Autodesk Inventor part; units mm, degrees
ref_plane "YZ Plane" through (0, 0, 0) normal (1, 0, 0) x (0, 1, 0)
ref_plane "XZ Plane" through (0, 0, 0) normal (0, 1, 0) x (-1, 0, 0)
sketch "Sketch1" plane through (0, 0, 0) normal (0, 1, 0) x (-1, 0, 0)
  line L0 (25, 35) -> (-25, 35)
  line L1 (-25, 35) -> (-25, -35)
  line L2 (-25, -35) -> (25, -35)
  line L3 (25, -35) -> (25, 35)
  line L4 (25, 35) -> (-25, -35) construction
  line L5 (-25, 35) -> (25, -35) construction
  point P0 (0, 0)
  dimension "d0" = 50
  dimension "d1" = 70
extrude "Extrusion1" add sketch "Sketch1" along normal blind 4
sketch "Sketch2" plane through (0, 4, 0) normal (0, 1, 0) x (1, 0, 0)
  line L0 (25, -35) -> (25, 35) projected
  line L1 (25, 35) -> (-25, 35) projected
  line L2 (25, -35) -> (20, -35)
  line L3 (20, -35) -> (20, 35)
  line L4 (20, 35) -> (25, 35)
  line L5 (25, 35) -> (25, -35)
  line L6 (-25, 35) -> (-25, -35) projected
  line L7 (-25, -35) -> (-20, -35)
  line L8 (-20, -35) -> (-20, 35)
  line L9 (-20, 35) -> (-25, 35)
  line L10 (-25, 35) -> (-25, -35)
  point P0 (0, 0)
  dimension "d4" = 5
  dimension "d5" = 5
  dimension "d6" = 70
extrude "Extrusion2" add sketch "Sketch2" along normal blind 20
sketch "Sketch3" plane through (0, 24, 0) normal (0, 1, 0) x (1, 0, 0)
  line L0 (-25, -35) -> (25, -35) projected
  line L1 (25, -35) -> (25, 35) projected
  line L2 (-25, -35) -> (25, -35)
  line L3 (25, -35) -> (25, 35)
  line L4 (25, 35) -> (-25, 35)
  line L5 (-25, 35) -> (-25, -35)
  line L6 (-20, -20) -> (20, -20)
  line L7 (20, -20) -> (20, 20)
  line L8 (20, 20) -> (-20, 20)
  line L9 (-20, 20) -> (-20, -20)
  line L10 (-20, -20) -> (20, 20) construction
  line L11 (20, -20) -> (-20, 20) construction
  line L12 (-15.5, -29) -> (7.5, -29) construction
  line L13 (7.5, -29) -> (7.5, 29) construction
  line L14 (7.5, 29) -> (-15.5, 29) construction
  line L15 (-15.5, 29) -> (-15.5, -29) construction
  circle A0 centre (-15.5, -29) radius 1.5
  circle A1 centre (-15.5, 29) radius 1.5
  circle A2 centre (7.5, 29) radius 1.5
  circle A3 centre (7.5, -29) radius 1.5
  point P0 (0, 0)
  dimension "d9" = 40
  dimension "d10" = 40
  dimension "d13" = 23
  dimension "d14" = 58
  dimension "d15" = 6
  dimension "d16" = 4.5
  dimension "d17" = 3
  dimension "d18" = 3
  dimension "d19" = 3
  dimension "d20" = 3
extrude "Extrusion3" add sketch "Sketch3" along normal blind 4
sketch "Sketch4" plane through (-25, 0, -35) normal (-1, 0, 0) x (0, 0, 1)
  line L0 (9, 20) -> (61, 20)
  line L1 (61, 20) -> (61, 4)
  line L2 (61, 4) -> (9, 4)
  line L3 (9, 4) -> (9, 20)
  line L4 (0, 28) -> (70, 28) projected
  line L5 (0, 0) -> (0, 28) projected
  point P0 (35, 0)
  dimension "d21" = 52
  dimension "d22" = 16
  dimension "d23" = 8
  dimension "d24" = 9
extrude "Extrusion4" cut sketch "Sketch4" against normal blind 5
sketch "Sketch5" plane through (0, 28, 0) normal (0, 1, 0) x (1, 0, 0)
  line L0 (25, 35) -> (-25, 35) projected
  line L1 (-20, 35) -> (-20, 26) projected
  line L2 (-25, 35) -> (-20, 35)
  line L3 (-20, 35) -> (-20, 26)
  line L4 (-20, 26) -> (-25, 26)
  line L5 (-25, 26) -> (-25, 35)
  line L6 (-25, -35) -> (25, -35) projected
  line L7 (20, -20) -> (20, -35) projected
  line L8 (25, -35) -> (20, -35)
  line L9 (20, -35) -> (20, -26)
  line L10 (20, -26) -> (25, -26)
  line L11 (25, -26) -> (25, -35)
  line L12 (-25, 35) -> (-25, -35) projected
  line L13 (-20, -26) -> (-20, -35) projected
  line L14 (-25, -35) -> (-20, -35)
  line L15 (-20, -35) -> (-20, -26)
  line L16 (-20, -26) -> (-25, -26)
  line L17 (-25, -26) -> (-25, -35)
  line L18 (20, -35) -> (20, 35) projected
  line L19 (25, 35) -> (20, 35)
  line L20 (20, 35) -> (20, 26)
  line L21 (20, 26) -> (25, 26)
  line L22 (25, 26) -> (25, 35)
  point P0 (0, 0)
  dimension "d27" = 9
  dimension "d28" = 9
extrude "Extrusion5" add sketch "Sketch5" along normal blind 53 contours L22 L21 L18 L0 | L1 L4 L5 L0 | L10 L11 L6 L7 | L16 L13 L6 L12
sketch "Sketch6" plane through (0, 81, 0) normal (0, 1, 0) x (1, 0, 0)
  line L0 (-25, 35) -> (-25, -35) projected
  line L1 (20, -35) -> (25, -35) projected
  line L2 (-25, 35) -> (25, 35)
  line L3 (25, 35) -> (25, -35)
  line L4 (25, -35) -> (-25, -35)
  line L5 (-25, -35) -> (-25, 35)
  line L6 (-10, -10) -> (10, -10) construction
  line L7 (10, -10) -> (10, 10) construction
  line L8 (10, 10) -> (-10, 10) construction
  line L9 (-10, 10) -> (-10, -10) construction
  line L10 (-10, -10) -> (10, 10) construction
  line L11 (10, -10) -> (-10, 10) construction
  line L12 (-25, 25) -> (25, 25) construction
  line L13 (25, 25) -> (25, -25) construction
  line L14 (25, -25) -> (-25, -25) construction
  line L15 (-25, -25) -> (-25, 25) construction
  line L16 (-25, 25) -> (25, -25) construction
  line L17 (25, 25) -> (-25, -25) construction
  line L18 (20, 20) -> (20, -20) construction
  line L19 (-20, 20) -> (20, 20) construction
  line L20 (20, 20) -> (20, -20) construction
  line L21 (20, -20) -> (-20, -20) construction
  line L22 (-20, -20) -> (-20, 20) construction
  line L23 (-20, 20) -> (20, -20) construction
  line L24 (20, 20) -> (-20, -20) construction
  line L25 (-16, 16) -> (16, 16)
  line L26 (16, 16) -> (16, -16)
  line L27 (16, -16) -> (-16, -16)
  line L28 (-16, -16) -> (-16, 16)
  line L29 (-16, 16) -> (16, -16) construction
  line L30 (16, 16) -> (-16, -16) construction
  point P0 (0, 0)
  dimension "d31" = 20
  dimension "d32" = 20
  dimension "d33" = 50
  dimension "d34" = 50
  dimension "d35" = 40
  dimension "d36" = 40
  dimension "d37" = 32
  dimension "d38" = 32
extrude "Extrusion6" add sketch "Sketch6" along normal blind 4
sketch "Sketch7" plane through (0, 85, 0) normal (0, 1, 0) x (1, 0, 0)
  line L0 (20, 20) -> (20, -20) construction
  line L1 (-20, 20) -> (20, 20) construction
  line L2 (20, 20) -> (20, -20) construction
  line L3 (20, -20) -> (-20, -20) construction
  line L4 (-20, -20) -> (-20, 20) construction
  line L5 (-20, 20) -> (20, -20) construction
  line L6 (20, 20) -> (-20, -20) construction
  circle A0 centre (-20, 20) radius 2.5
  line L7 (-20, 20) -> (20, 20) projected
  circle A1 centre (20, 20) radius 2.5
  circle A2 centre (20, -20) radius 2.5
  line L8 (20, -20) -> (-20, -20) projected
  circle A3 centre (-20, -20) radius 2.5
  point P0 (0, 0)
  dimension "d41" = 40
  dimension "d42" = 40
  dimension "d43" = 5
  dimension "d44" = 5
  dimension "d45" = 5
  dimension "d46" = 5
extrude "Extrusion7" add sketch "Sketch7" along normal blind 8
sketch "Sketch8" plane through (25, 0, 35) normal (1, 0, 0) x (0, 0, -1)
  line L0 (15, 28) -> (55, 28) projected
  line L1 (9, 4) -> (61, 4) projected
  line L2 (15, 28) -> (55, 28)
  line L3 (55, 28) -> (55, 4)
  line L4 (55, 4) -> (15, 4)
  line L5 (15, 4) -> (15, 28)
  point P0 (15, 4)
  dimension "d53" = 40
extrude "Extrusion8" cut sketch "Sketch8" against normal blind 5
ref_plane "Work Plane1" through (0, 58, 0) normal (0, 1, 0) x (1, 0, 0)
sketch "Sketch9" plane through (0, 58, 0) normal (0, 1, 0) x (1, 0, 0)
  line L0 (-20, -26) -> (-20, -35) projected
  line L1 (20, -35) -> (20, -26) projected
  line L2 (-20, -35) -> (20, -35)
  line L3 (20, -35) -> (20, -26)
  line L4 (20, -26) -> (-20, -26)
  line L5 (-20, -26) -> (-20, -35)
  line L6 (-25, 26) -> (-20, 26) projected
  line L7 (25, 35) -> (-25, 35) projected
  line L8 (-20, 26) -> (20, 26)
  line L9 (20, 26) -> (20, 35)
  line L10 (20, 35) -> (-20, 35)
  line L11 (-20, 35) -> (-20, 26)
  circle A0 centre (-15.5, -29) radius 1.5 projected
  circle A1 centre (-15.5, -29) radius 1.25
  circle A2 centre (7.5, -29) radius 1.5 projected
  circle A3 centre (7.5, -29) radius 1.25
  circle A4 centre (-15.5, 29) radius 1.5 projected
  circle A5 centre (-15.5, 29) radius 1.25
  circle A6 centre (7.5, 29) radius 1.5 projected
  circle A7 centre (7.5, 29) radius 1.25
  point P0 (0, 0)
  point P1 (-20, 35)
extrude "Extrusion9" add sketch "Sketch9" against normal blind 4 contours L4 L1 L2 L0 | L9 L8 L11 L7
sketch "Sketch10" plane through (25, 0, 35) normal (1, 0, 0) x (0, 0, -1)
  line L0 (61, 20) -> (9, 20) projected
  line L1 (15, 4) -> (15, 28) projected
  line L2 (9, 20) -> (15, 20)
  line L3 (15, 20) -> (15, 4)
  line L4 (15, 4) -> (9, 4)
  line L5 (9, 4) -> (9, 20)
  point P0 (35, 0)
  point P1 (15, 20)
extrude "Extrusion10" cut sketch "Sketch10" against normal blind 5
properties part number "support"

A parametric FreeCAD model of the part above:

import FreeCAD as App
import Part
import Sketcher

V = App.Vector
Q = App.Units.Quantity

doc = App.newDocument("Part")
body = doc.addObject("PartDesign::Body", "Body")

# Sketch on XZ plane
sketch1 = doc.addObject("Sketcher::SketchObject", "Sketch")
body.addObject(sketch1)
sketch1.AttachmentSupport = (doc.XZ_Plane, [""])
sketch1.MapMode = "FlatFace"
sketch1.addGeometry(Part.LineSegment(V(-25, -35, 0), V(-25, 35, 0)), False)
sketch1.addGeometry(Part.LineSegment(V(-25, 35, 0), V(25, 35, 0)), False)
sketch1.addGeometry(Part.LineSegment(V(25, 35, 0), V(25, -35, 0)), False)
sketch1.addGeometry(Part.LineSegment(V(25, -35, 0), V(-25, -35, 0)), False)
sketch1.addConstraint(Sketcher.Constraint("Coincident", 0, 2, 1, 1))
sketch1.addConstraint(Sketcher.Constraint("Coincident", 1, 2, 2, 1))
sketch1.addConstraint(Sketcher.Constraint("Coincident", 2, 2, 3, 1))
sketch1.addConstraint(Sketcher.Constraint("Coincident", 3, 2, 0, 1))
sketch1.addConstraint(Sketcher.Constraint("Vertical", 0))
sketch1.addConstraint(Sketcher.Constraint("Horizontal", 1))
sketch1.addConstraint(Sketcher.Constraint("Vertical", 2))
sketch1.addConstraint(Sketcher.Constraint("Horizontal", 3))
sketch1.addConstraint(Sketcher.Constraint("Symmetric", 0, 2, 2, 2, -1, 1))
sketch1.addConstraint(Sketcher.Constraint("DistanceX", 1, 1, 1, 2, Q("50 mm")))
sketch1.addConstraint(Sketcher.Constraint("DistanceY", 0, 1, 0, 2, Q("70 mm")))
pad1 = doc.addObject("PartDesign::Pad", "Pad")
body.addObject(pad1)
pad1.Profile = sketch1
pad1.Length = 4
pad1.Reversed = True

# Sketch on XZ plane
sketch2 = doc.addObject("Sketcher::SketchObject", "Sketch001")
body.addObject(sketch2)
sketch2.AttachmentSupport = (doc.XZ_Plane, [""])
sketch2.MapMode = "FlatFace"
sketch2.AttachmentOffset = App.Placement(V(0, 0, -4), App.Rotation())
sketch2.addGeometry(Part.LineSegment(V(20, 35, 0), V(25, 35, 0)), False)
sketch2.addGeometry(Part.LineSegment(V(25, 35, 0), V(25, -35, 0)), False)
sketch2.addGeometry(Part.LineSegment(V(25, -35, 0), V(20, -35, 0)), False)
sketch2.addGeometry(Part.LineSegment(V(20, -35, 0), V(20, 35, 0)), False)
sketch2.addGeometry(Part.LineSegment(V(-20, 35, 0), V(-20, -35, 0)), False)
sketch2.addGeometry(Part.LineSegment(V(-20, -35, 0), V(-25, -35, 0)), False)
sketch2.addGeometry(Part.LineSegment(V(-25, -35, 0), V(-25, 35, 0)), False)
sketch2.addGeometry(Part.LineSegment(V(-25, 35, 0), V(-20, 35, 0)), False)
sketch2.addConstraint(Sketcher.Constraint("Coincident", 0, 2, 1, 1))
sketch2.addConstraint(Sketcher.Constraint("Coincident", 1, 2, 2, 1))
sketch2.addConstraint(Sketcher.Constraint("Coincident", 2, 2, 3, 1))
sketch2.addConstraint(Sketcher.Constraint("Coincident", 3, 2, 0, 1))
sketch2.addConstraint(Sketcher.Constraint("Coincident", 4, 2, 5, 1))
sketch2.addConstraint(Sketcher.Constraint("Coincident", 5, 2, 6, 1))
sketch2.addConstraint(Sketcher.Constraint("Coincident", 6, 2, 7, 1))
sketch2.addConstraint(Sketcher.Constraint("Coincident", 7, 2, 4, 1))
sketch2.addConstraint(Sketcher.Constraint("Horizontal", 0))
sketch2.addConstraint(Sketcher.Constraint("Vertical", 1))
sketch2.addConstraint(Sketcher.Constraint("Horizontal", 2))
sketch2.addConstraint(Sketcher.Constraint("Vertical", 3))
sketch2.addConstraint(Sketcher.Constraint("Vertical", 4))
sketch2.addConstraint(Sketcher.Constraint("Horizontal", 5))
sketch2.addConstraint(Sketcher.Constraint("Vertical", 6))
sketch2.addConstraint(Sketcher.Constraint("Horizontal", 7))
sketch2.addConstraint(Sketcher.Constraint("Symmetric", 3, 2, 4, 2, -1, 1))
sketch2.addConstraint(Sketcher.Constraint("Symmetric", 1, 2, 6, 2, -1, 1))
sketch2.addConstraint(Sketcher.Constraint("Horizontal", 2, 2, 4, 2))
sketch2.addConstraint(Sketcher.Constraint("DistanceX", 0, 1, 0, 2, Q("5 mm")))
sketch2.addConstraint(Sketcher.Constraint("DistanceY", 1, 2, 1, 1, Q("70 mm")))
sketch2.addConstraint(Sketcher.Constraint("DistanceX", -1, 1, 0, 2, Q("25 mm")))
pad2 = doc.addObject("PartDesign::Pad", "Pad001")
body.addObject(pad2)
pad2.Profile = sketch2
pad2.Length = 20
pad2.Reversed = True

# Sketch on XZ plane
sketch3 = doc.addObject("Sketcher::SketchObject", "Sketch002")
body.addObject(sketch3)
sketch3.AttachmentSupport = (doc.XZ_Plane, [""])
sketch3.MapMode = "FlatFace"
sketch3.AttachmentOffset = App.Placement(V(0, 0, -24), App.Rotation())
sketch3.addGeometry(Part.LineSegment(V(-25, -35, 0), V(-25, 35, 0)), False)
sketch3.addGeometry(Part.LineSegment(V(-25, 35, 0), V(25, 35, 0)), False)
sketch3.addGeometry(Part.LineSegment(V(25, 35, 0), V(25, -35, 0)), False)
sketch3.addGeometry(Part.LineSegment(V(25, -35, 0), V(-25, -35, 0)), False)
sketch3.addGeometry(Part.Circle(V(-15.5, 29, 0), V(0, 0, 1), 1.5), False)
sketch3.addGeometry(Part.Circle(V(7.5, 29, 0), V(0, 0, 1), 1.5), False)
sketch3.addGeometry(Part.Circle(V(-15.5, -29, 0), V(0, 0, 1), 1.5), False)
sketch3.addGeometry(Part.LineSegment(V(20, 20, 0), V(-20, 20, 0)), False)
sketch3.addGeometry(Part.LineSegment(V(-20, 20, 0), V(-20, -20, 0)), False)
sketch3.addGeometry(Part.LineSegment(V(-20, -20, 0), V(20, -20, 0)), False)
sketch3.addGeometry(Part.LineSegment(V(20, -20, 0), V(20, 20, 0)), False)
sketch3.addGeometry(Part.Circle(V(7.5, -29, 0), V(0, 0, 1), 1.5), False)
sketch3.addConstraint(Sketcher.Constraint("Coincident", 0, 2, 1, 1))
sketch3.addConstraint(Sketcher.Constraint("Coincident", 1, 2, 2, 1))
sketch3.addConstraint(Sketcher.Constraint("Coincident", 2, 2, 3, 1))
sketch3.addConstraint(Sketcher.Constraint("Coincident", 3, 2, 0, 1))
sketch3.addConstraint(Sketcher.Constraint("Coincident", 7, 2, 8, 1))
sketch3.addConstraint(Sketcher.Constraint("Coincident", 8, 2, 9, 1))
sketch3.addConstraint(Sketcher.Constraint("Coincident", 9, 2, 10, 1))
sketch3.addConstraint(Sketcher.Constraint("Coincident", 10, 2, 7, 1))
sketch3.addConstraint(Sketcher.Constraint("Vertical", 0))
sketch3.addConstraint(Sketcher.Constraint("Horizontal", 1))
sketch3.addConstraint(Sketcher.Constraint("Vertical", 2))
sketch3.addConstraint(Sketcher.Constraint("Horizontal", 3))
sketch3.addConstraint(Sketcher.Constraint("Horizontal", 7))
sketch3.addConstraint(Sketcher.Constraint("Vertical", 8))
sketch3.addConstraint(Sketcher.Constraint("Horizontal", 9))
sketch3.addConstraint(Sketcher.Constraint("Vertical", 10))
sketch3.addConstraint(Sketcher.Constraint("Equal", 4, 5))
sketch3.addConstraint(Sketcher.Constraint("Equal", 5, 6))
sketch3.addConstraint(Sketcher.Constraint("Equal", 6, 11))
sketch3.addConstraint(Sketcher.Constraint("Symmetric", 0, 2, 2, 2, -1, 1))
sketch3.addConstraint(Sketcher.Constraint("Symmetric", 7, 2, 9, 2, -1, 1))
sketch3.addConstraint(Sketcher.Constraint("Symmetric", 4, 3, 6, 3, -1))
sketch3.addConstraint(Sketcher.Constraint("Symmetric", 5, 3, 11, 3, -1))
sketch3.addConstraint(Sketcher.Constraint("Horizontal", 4, 3, 5, 3))
sketch3.addConstraint(Sketcher.Constraint("Equal", 9, 8))
sketch3.addConstraint(Sketcher.Constraint("Diameter", 4, Q("3 mm")))
sketch3.addConstraint(Sketcher.Constraint("DistanceX", 7, 2, 7, 1, Q("40 mm")))
sketch3.addConstraint(Sketcher.Constraint("DistanceX", 4, 3, 5, 3, Q("23 mm")))
sketch3.addConstraint(Sketcher.Constraint("DistanceY", 6, 3, 4, 3, Q("58 mm")))
sketch3.addConstraint(Sketcher.Constraint("DistanceY", 4, 3, 0, 2, Q("6 mm")))
sketch3.addConstraint(Sketcher.Constraint("DistanceX", 7, 2, 4, 3, Q("4.5 mm")))
sketch3.addConstraint(Sketcher.Constraint("DistanceX", 1, 1, 1, 2, Q("50 mm")))
pad3 = doc.addObject("PartDesign::Pad", "Pad002")
body.addObject(pad3)
pad3.Profile = sketch3
pad3.Length = 4
pad3.Reversed = True

# Sketch on YZ plane
sketch4 = doc.addObject("Sketcher::SketchObject", "Sketch003")
body.addObject(sketch4)
sketch4.AttachmentSupport = (doc.YZ_Plane, [""])
sketch4.MapMode = "FlatFace"
sketch4.AttachmentOffset = App.Placement(V(0, 0, -25), App.Rotation())
sketch4.addGeometry(Part.LineSegment(V(20, 26, 0), V(20, -26, 0)), False)
sketch4.addGeometry(Part.LineSegment(V(20, -26, 0), V(4, -26, 0)), False)
sketch4.addGeometry(Part.LineSegment(V(4, -26, 0), V(4, 26, 0)), False)
sketch4.addGeometry(Part.LineSegment(V(4, 26, 0), V(20, 26, 0)), False)
sketch4.addConstraint(Sketcher.Constraint("Coincident", 0, 2, 1, 1))
sketch4.addConstraint(Sketcher.Constraint("Coincident", 1, 2, 2, 1))
sketch4.addConstraint(Sketcher.Constraint("Coincident", 2, 2, 3, 1))
sketch4.addConstraint(Sketcher.Constraint("Coincident", 3, 2, 0, 1))
sketch4.addConstraint(Sketcher.Constraint("Vertical", 0))
sketch4.addConstraint(Sketcher.Constraint("Horizontal", 1))
sketch4.addConstraint(Sketcher.Constraint("Vertical", 2))
sketch4.addConstraint(Sketcher.Constraint("Horizontal", 3))
sketch4.addConstraint(Sketcher.Constraint("DistanceX", 1, 2, 1, 1, Q("16 mm")))
sketch4.addConstraint(Sketcher.Constraint("DistanceY", 0, 2, 0, 1, Q("52 mm")))
sketch4.addConstraint(Sketcher.Constraint("DistanceX", -1, 1, 0, 2, Q("20 mm")))
sketch4.addConstraint(Sketcher.Constraint("DistanceY", 0, 2, -1, 1, Q("26 mm")))
pocket1 = doc.addObject("PartDesign::Pocket", "Pocket")
body.addObject(pocket1)
pocket1.Profile = sketch4
pocket1.Length = 5
pocket1.Reversed = True

# Sketch on XZ plane
sketch5 = doc.addObject("Sketcher::SketchObject", "Sketch004")
body.addObject(sketch5)
sketch5.AttachmentSupport = (doc.XZ_Plane, [""])
sketch5.MapMode = "FlatFace"
sketch5.AttachmentOffset = App.Placement(V(0, 0, -28), App.Rotation())
sketch5.addGeometry(Part.LineSegment(V(25, -26, 0), V(25, -35, 0)), False)
sketch5.addGeometry(Part.LineSegment(V(25, -35, 0), V(20, -35, 0)), False)
sketch5.addGeometry(Part.LineSegment(V(20, -35, 0), V(20, -26, 0)), False)
sketch5.addGeometry(Part.LineSegment(V(20, -26, 0), V(25, -26, 0)), False)
sketch5.addGeometry(Part.LineSegment(V(-20, -26, 0), V(-20, -35, 0)), False)
sketch5.addGeometry(Part.LineSegment(V(-20, -35, 0), V(-25, -35, 0)), False)
sketch5.addGeometry(Part.LineSegment(V(-25, -35, 0), V(-25, -26, 0)), False)
sketch5.addGeometry(Part.LineSegment(V(-25, -26, 0), V(-20, -26, 0)), False)
sketch5.addGeometry(Part.LineSegment(V(25, 26, 0), V(20, 26, 0)), False)
sketch5.addGeometry(Part.LineSegment(V(20, 26, 0), V(20, 35, 0)), False)
sketch5.addGeometry(Part.LineSegment(V(20, 35, 0), V(25, 35, 0)), False)
sketch5.addGeometry(Part.LineSegment(V(25, 35, 0), V(25, 26, 0)), False)
sketch5.addGeometry(Part.LineSegment(V(-20, 26, 0), V(-25, 26, 0)), False)
sketch5.addGeometry(Part.LineSegment(V(-25, 26, 0), V(-25, 35, 0)), False)
sketch5.addGeometry(Part.LineSegment(V(-25, 35, 0), V(-20, 35, 0)), False)
sketch5.addGeometry(Part.LineSegment(V(-20, 35, 0), V(-20, 26, 0)), False)
sketch5.addConstraint(Sketcher.Constraint("Coincident", 0, 2, 1, 1))
sketch5.addConstraint(Sketcher.Constraint("Coincident", 1, 2, 2, 1))
sketch5.addConstraint(Sketcher.Constraint("Coincident", 2, 2, 3, 1))
sketch5.addConstraint(Sketcher.Constraint("Coincident", 3, 2, 0, 1))
sketch5.addConstraint(Sketcher.Constraint("Coincident", 4, 2, 5, 1))
sketch5.addConstraint(Sketcher.Constraint("Coincident", 5, 2, 6, 1))
sketch5.addConstraint(Sketcher.Constraint("Coincident", 6, 2, 7, 1))
sketch5.addConstraint(Sketcher.Constraint("Coincident", 7, 2, 4, 1))
sketch5.addConstraint(Sketcher.Constraint("Coincident", 8, 2, 9, 1))
sketch5.addConstraint(Sketcher.Constraint("Coincident", 9, 2, 10, 1))
sketch5.addConstraint(Sketcher.Constraint("Coincident", 10, 2, 11, 1))
sketch5.addConstraint(Sketcher.Constraint("Coincident", 11, 2, 8, 1))
sketch5.addConstraint(Sketcher.Constraint("Coincident", 12, 2, 13, 1))
sketch5.addConstraint(Sketcher.Constraint("Coincident", 13, 2, 14, 1))
sketch5.addConstraint(Sketcher.Constraint("Coincident", 14, 2, 15, 1))
sketch5.addConstraint(Sketcher.Constraint("Coincident", 15, 2, 12, 1))
sketch5.addConstraint(Sketcher.Constraint("Vertical", 0))
sketch5.addConstraint(Sketcher.Constraint("Horizontal", 1))
sketch5.addConstraint(Sketcher.Constraint("Vertical", 2))
sketch5.addConstraint(Sketcher.Constraint("Horizontal", 3))
sketch5.addConstraint(Sketcher.Constraint("Vertical", 4))
sketch5.addConstraint(Sketcher.Constraint("Horizontal", 5))
sketch5.addConstraint(Sketcher.Constraint("Vertical", 6))
sketch5.addConstraint(Sketcher.Constraint("Horizontal", 7))
sketch5.addConstraint(Sketcher.Constraint("Horizontal", 8))
sketch5.addConstraint(Sketcher.Constraint("Vertical", 9))
sketch5.addConstraint(Sketcher.Constraint("Horizontal", 10))
sketch5.addConstraint(Sketcher.Constraint("Vertical", 11))
sketch5.addConstraint(Sketcher.Constraint("Horizontal", 12))
sketch5.addConstraint(Sketcher.Constraint("Vertical", 13))
sketch5.addConstraint(Sketcher.Constraint("Horizontal", 14))
sketch5.addConstraint(Sketcher.Constraint("Vertical", 15))
sketch5.addConstraint(Sketcher.Constraint("Symmetric", 7, 2, 8, 2, -1, 1))
sketch5.addConstraint(Sketcher.Constraint("Symmetric", 5, 2, 10, 2, -1, 1))
sketch5.addConstraint(Sketcher.Constraint("Symmetric", 3, 2, 12, 2, -1, 1))
sketch5.addConstraint(Sketcher.Constraint("Symmetric", 1, 2, 14, 2, -1, 1))
sketch5.addConstraint(Sketcher.Constraint("Symmetric", 1, 2, 4, 2, -2))
sketch5.addConstraint(Sketcher.Constraint("Symmetric", 3, 2, 6, 2, -2))
sketch5.addConstraint(Sketcher.Constraint("DistanceY", 0, 2, 0, 1, Q("9 mm")))
sketch5.addConstraint(Sketcher.Constraint("DistanceX", 1, 2, 1, 1, Q("5 mm")))
sketch5.addConstraint(Sketcher.Constraint("DistanceX", -1, 1, 0, 2, Q("25 mm")))
sketch5.addConstraint(Sketcher.Constraint("DistanceY", 0, 2, -1, 1, Q("35 mm")))
pad4 = doc.addObject("PartDesign::Pad", "Pad003")
body.addObject(pad4)
pad4.Profile = sketch5
pad4.Length = 53
pad4.Reversed = True

# Sketch on XZ plane
sketch6 = doc.addObject("Sketcher::SketchObject", "Sketch005")
body.addObject(sketch6)
sketch6.AttachmentSupport = (doc.XZ_Plane, [""])
sketch6.MapMode = "FlatFace"
sketch6.AttachmentOffset = App.Placement(V(0, 0, -81), App.Rotation())
sketch6.addGeometry(Part.LineSegment(V(25, -35, 0), V(-25, -35, 0)), False)
sketch6.addGeometry(Part.LineSegment(V(-25, -35, 0), V(-25, 35, 0)), False)
sketch6.addGeometry(Part.LineSegment(V(-25, 35, 0), V(25, 35, 0)), False)
sketch6.addGeometry(Part.LineSegment(V(25, 35, 0), V(25, -35, 0)), False)
sketch6.addGeometry(Part.LineSegment(V(-16, 16, 0), V(-16, -16, 0)), False)
sketch6.addGeometry(Part.LineSegment(V(-16, -16, 0), V(16, -16, 0)), False)
sketch6.addGeometry(Part.LineSegment(V(16, -16, 0), V(16, 16, 0)), False)
sketch6.addGeometry(Part.LineSegment(V(16, 16, 0), V(-16, 16, 0)), False)
sketch6.addConstraint(Sketcher.Constraint("Coincident", 0, 2, 1, 1))
sketch6.addConstraint(Sketcher.Constraint("Coincident", 1, 2, 2, 1))
sketch6.addConstraint(Sketcher.Constraint("Coincident", 2, 2, 3, 1))
sketch6.addConstraint(Sketcher.Constraint("Coincident", 3, 2, 0, 1))
sketch6.addConstraint(Sketcher.Constraint("Coincident", 4, 2, 5, 1))
sketch6.addConstraint(Sketcher.Constraint("Coincident", 5, 2, 6, 1))
sketch6.addConstraint(Sketcher.Constraint("Coincident", 6, 2, 7, 1))
sketch6.addConstraint(Sketcher.Constraint("Coincident", 7, 2, 4, 1))
sketch6.addConstraint(Sketcher.Constraint("Horizontal", 0))
sketch6.addConstraint(Sketcher.Constraint("Vertical", 1))
sketch6.addConstraint(Sketcher.Constraint("Horizontal", 2))
sketch6.addConstraint(Sketcher.Constraint("Vertical", 3))
sketch6.addConstraint(Sketcher.Constraint("Vertical", 4))
sketch6.addConstraint(Sketcher.Constraint("Horizontal", 5))
sketch6.addConstraint(Sketcher.Constraint("Vertical", 6))
sketch6.addConstraint(Sketcher.Constraint("Horizontal", 7))
sketch6.addConstraint(Sketcher.Constraint("Symmetric", 0, 2, 2, 2, -1, 1))
sketch6.addConstraint(Sketcher.Constraint("Symmetric", 4, 2, 6, 2, -1, 1))
sketch6.addConstraint(Sketcher.Constraint("Equal", 7, 4))
sketch6.addConstraint(Sketcher.Constraint("DistanceX", 0, 2, 0, 1, Q("50 mm")))
sketch6.addConstraint(Sketcher.Constraint("DistanceX", 5, 1, 5, 2, Q("32 mm")))
sketch6.addConstraint(Sketcher.Constraint("DistanceY", 1, 1, 1, 2, Q("70 mm")))
pad5 = doc.addObject("PartDesign::Pad", "Pad004")
body.addObject(pad5)
pad5.Profile = sketch6
pad5.Length = 4
pad5.Reversed = True

# Sketch on XZ plane
sketch7 = doc.addObject("Sketcher::SketchObject", "Sketch006")
body.addObject(sketch7)
sketch7.AttachmentSupport = (doc.XZ_Plane, [""])
sketch7.MapMode = "FlatFace"
sketch7.AttachmentOffset = App.Placement(V(0, 0, -85), App.Rotation())
sketch7.addGeometry(Part.Circle(V(-20, -20, 0), V(0, 0, 1), 2.5), False)
sketch7.addGeometry(Part.Circle(V(20, -20, 0), V(0, 0, 1), 2.5), False)
sketch7.addGeometry(Part.Circle(V(20, 20, 0), V(0, 0, 1), 2.5), False)
sketch7.addGeometry(Part.Circle(V(-20, 20, 0), V(0, 0, 1), 2.5), False)
sketch7.addConstraint(Sketcher.Constraint("Equal", 0, 1))
sketch7.addConstraint(Sketcher.Constraint("Equal", 1, 2))
sketch7.addConstraint(Sketcher.Constraint("Equal", 2, 3))
sketch7.addConstraint(Sketcher.Constraint("Symmetric", 0, 3, 2, 3, -1, 1))
sketch7.addConstraint(Sketcher.Constraint("Symmetric", 1, 3, 3, 3, -1, 1))
sketch7.addConstraint(Sketcher.Constraint("Symmetric", 0, 3, 1, 3, -2))
sketch7.addConstraint(Sketcher.Constraint("Diameter", 0, Q("5 mm")))
sketch7.addConstraint(Sketcher.Constraint("DistanceX", 0, 3, 1, 3, Q("40 mm")))
sketch7.addConstraint(Sketcher.Constraint("DistanceY", 1, 3, 2, 3, Q("40 mm")))
pad6 = doc.addObject("PartDesign::Pad", "Pad005")
body.addObject(pad6)
pad6.Profile = sketch7
pad6.Length = 8
pad6.Reversed = True

# Sketch on YZ plane
sketch8 = doc.addObject("Sketcher::SketchObject", "Sketch007")
body.addObject(sketch8)
sketch8.AttachmentSupport = (doc.YZ_Plane, [""])
sketch8.MapMode = "FlatFace"
sketch8.AttachmentOffset = App.Placement(V(0, 0, 25), App.Rotation())
sketch8.addGeometry(Part.LineSegment(V(28, -20, 0), V(28, 20, 0)), False)
sketch8.addGeometry(Part.LineSegment(V(28, 20, 0), V(4, 20, 0)), False)
sketch8.addGeometry(Part.LineSegment(V(4, 20, 0), V(4, -20, 0)), False)
sketch8.addGeometry(Part.LineSegment(V(4, -20, 0), V(28, -20, 0)), False)
sketch8.addConstraint(Sketcher.Constraint("Coincident", 0, 2, 1, 1))
sketch8.addConstraint(Sketcher.Constraint("Coincident", 1, 2, 2, 1))
sketch8.addConstraint(Sketcher.Constraint("Coincident", 2, 2, 3, 1))
sketch8.addConstraint(Sketcher.Constraint("Coincident", 3, 2, 0, 1))
sketch8.addConstraint(Sketcher.Constraint("Vertical", 0))
sketch8.addConstraint(Sketcher.Constraint("Horizontal", 1))
sketch8.addConstraint(Sketcher.Constraint("Vertical", 2))
sketch8.addConstraint(Sketcher.Constraint("Horizontal", 3))
sketch8.addConstraint(Sketcher.Constraint("DistanceY", 0, 1, 0, 2, Q("40 mm")))
sketch8.addConstraint(Sketcher.Constraint("DistanceX", 1, 2, 1, 1, Q("24 mm")))
sketch8.addConstraint(Sketcher.Constraint("DistanceX", -1, 1, 0, 2, Q("28 mm")))
sketch8.addConstraint(Sketcher.Constraint("DistanceY", -1, 1, 0, 2, Q("20 mm")))
pocket2 = doc.addObject("PartDesign::Pocket", "Pocket001")
body.addObject(pocket2)
pocket2.Profile = sketch8
pocket2.Length = 5

# Sketch on XZ plane
sketch9 = doc.addObject("Sketcher::SketchObject", "Sketch008")
body.addObject(sketch9)
sketch9.AttachmentSupport = (doc.XZ_Plane, [""])
sketch9.MapMode = "FlatFace"
sketch9.AttachmentOffset = App.Placement(V(0, 0, -58), App.Rotation())
sketch9.addGeometry(Part.LineSegment(V(20, 26, 0), V(-20, 26, 0)), False)
sketch9.addGeometry(Part.LineSegment(V(-20, 26, 0), V(-20, 35, 0)), False)
sketch9.addGeometry(Part.LineSegment(V(-20, 35, 0), V(20, 35, 0)), False)
sketch9.addGeometry(Part.LineSegment(V(20, 35, 0), V(20, 26, 0)), False)
sketch9.addGeometry(Part.Circle(V(-15.5, 29, 0), V(0, 0, 1), 1.5), False)
sketch9.addGeometry(Part.Circle(V(7.5, 29, 0), V(0, 0, 1), 1.5), False)
sketch9.addGeometry(Part.LineSegment(V(20, -26, 0), V(20, -35, 0)), False)
sketch9.addGeometry(Part.LineSegment(V(20, -35, 0), V(-20, -35, 0)), False)
sketch9.addGeometry(Part.LineSegment(V(-20, -35, 0), V(-20, -26, 0)), False)
sketch9.addGeometry(Part.LineSegment(V(-20, -26, 0), V(20, -26, 0)), False)
sketch9.addGeometry(Part.Circle(V(-15.5, -29, 0), V(0, 0, 1), 1.5), False)
sketch9.addGeometry(Part.Circle(V(7.5, -29, 0), V(0, 0, 1), 1.5), False)
sketch9.addConstraint(Sketcher.Constraint("Coincident", 0, 2, 1, 1))
sketch9.addConstraint(Sketcher.Constraint("Coincident", 1, 2, 2, 1))
sketch9.addConstraint(Sketcher.Constraint("Coincident", 2, 2, 3, 1))
sketch9.addConstraint(Sketcher.Constraint("Coincident", 3, 2, 0, 1))
sketch9.addConstraint(Sketcher.Constraint("Coincident", 6, 2, 7, 1))
sketch9.addConstraint(Sketcher.Constraint("Coincident", 7, 2, 8, 1))
sketch9.addConstraint(Sketcher.Constraint("Coincident", 8, 2, 9, 1))
sketch9.addConstraint(Sketcher.Constraint("Coincident", 9, 2, 6, 1))
sketch9.addConstraint(Sketcher.Constraint("Horizontal", 0))
sketch9.addConstraint(Sketcher.Constraint("Vertical", 1))
sketch9.addConstraint(Sketcher.Constraint("Horizontal", 2))
sketch9.addConstraint(Sketcher.Constraint("Vertical", 3))
sketch9.addConstraint(Sketcher.Constraint("Vertical", 6))
sketch9.addConstraint(Sketcher.Constraint("Horizontal", 7))
sketch9.addConstraint(Sketcher.Constraint("Vertical", 8))
sketch9.addConstraint(Sketcher.Constraint("Horizontal", 9))
sketch9.addConstraint(Sketcher.Constraint("Equal", 4, 5))
sketch9.addConstraint(Sketcher.Constraint("Equal", 5, 10))
sketch9.addConstraint(Sketcher.Constraint("Equal", 10, 11))
sketch9.addConstraint(Sketcher.Constraint("Symmetric", 1, 2, 6, 2, -1, 1))
sketch9.addConstraint(Sketcher.Constraint("Symmetric", 3, 2, 8, 2, -1, 1))
sketch9.addConstraint(Sketcher.Constraint("Symmetric", 4, 3, 10, 3, -1))
sketch9.addConstraint(Sketcher.Constraint("Symmetric", 5, 3, 11, 3, -1))
sketch9.addConstraint(Sketcher.Constraint("Horizontal", 4, 3, 5, 3))
sketch9.addConstraint(Sketcher.Constraint("Vertical", 3, 2, 6, 2))
sketch9.addConstraint(Sketcher.Constraint("Diameter", 4, Q("3 mm")))
sketch9.addConstraint(Sketcher.Constraint("DistanceX", 0, 2, 0, 1, Q("40 mm")))
sketch9.addConstraint(Sketcher.Constraint("DistanceY", 1, 1, 1, 2, Q("9 mm")))
sketch9.addConstraint(Sketcher.Constraint("DistanceY", -1, 1, 4, 3, Q("29 mm")))
sketch9.addConstraint(Sketcher.Constraint("DistanceY", -1, 1, 0, 2, Q("26 mm")))
sketch9.addConstraint(Sketcher.Constraint("DistanceX", 4, 3, 5, 3, Q("23 mm")))
sketch9.addConstraint(Sketcher.Constraint("DistanceX", 4, 3, -1, 1, Q("15.5 mm")))
pad7 = doc.addObject("PartDesign::Pad", "Pad006")
body.addObject(pad7)
pad7.Profile = sketch9
pad7.Length = 4

# Sketch on YZ plane
sketch10 = doc.addObject("Sketcher::SketchObject", "Sketch009")
body.addObject(sketch10)
sketch10.AttachmentSupport = (doc.YZ_Plane, [""])
sketch10.MapMode = "FlatFace"
sketch10.AttachmentOffset = App.Placement(V(0, 0, 25), App.Rotation())
sketch10.addGeometry(Part.LineSegment(V(4, 20, 0), V(20, 20, 0)), False)
sketch10.addGeometry(Part.LineSegment(V(20, 20, 0), V(20, 26, 0)), False)
sketch10.addGeometry(Part.LineSegment(V(20, 26, 0), V(4, 26, 0)), False)
sketch10.addGeometry(Part.LineSegment(V(4, 26, 0), V(4, 20, 0)), False)
sketch10.addConstraint(Sketcher.Constraint("Coincident", 0, 2, 1, 1))
sketch10.addConstraint(Sketcher.Constraint("Coincident", 1, 2, 2, 1))
sketch10.addConstraint(Sketcher.Constraint("Coincident", 2, 2, 3, 1))
sketch10.addConstraint(Sketcher.Constraint("Coincident", 3, 2, 0, 1))
sketch10.addConstraint(Sketcher.Constraint("Horizontal", 0))
sketch10.addConstraint(Sketcher.Constraint("Vertical", 1))
sketch10.addConstraint(Sketcher.Constraint("Horizontal", 2))
sketch10.addConstraint(Sketcher.Constraint("Vertical", 3))
sketch10.addConstraint(Sketcher.Constraint("DistanceX", 0, 1, 0, 2, Q("16 mm")))
sketch10.addConstraint(Sketcher.Constraint("DistanceY", 1, 1, 1, 2, Q("6 mm")))
sketch10.addConstraint(Sketcher.Constraint("DistanceX", -1, 1, 0, 2, Q("20 mm")))
sketch10.addConstraint(Sketcher.Constraint("DistanceY", -1, 1, 0, 2, Q("20 mm")))
pocket3 = doc.addObject("PartDesign::Pocket", "Pocket002")
body.addObject(pocket3)
pocket3.Profile = sketch10
pocket3.Length = 5

doc.recompute()
